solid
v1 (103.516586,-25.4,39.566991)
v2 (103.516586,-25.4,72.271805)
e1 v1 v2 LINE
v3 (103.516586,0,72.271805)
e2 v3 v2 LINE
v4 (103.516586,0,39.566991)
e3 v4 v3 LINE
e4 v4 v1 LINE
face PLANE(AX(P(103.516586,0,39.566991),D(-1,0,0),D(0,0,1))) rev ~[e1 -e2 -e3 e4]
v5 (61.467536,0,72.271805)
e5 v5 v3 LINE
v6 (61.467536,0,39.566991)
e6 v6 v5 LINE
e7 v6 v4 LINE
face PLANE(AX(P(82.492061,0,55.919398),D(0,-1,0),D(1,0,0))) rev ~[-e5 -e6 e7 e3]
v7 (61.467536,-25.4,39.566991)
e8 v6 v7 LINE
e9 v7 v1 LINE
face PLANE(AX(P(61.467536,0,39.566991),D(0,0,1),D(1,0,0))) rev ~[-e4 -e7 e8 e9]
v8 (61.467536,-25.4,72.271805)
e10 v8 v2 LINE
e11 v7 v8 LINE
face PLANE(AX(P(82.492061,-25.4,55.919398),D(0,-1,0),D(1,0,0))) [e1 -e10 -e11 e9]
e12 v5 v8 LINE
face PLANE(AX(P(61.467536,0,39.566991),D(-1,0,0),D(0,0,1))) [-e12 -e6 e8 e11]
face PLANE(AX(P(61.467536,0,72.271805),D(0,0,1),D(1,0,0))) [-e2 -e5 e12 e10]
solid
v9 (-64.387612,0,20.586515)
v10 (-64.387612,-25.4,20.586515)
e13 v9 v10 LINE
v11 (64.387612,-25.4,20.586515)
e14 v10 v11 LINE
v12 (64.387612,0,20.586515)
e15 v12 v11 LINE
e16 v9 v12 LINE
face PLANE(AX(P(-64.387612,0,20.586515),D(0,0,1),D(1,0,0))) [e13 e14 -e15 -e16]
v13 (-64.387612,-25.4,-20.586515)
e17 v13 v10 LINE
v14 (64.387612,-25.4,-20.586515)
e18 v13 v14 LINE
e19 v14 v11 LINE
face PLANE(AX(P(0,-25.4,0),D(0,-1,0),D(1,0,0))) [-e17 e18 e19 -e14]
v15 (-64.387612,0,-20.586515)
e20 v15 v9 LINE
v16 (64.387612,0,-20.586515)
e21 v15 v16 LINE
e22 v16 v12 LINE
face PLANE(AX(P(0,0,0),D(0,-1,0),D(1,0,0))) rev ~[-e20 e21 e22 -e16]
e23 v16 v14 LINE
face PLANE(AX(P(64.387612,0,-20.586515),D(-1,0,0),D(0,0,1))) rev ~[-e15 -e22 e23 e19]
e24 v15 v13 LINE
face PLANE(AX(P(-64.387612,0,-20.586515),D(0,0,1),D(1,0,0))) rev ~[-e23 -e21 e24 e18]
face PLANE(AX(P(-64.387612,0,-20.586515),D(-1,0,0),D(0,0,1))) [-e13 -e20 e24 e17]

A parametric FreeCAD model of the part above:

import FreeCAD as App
import Part
import Sketcher

V = App.Vector
Q = App.Units.Quantity


def add_polygon(sketch, points):
    """Adds a closed chain of lines whose ends are joined by coincident constraints."""
    first, n = sketch.GeometryCount, len(points)
    for a, b in zip(points, points[1:] + points[:1]):
        sketch.addGeometry(Part.LineSegment(App.Vector(*a, 0), App.Vector(*b, 0)), False)
    for i in range(n):
        sketch.addConstraint(Sketcher.Constraint("Coincident", first + i, 2, first + (i + 1) % n, 1))

doc = App.newDocument("Part")
body = doc.addObject("PartDesign::Body", "Body")
body.AllowCompound = True

# Sketch on XZ plane
sketch1 = body.newObject("Sketcher::SketchObject", "Sketch")
sketch1.AttachmentSupport = (doc.getObject("XZ_Plane"), [""])
sketch1.MapMode = "FlatFace"
add_polygon(sketch1, [(-64, 21), (-64, -21), (64, -21), (64, 21)])  # lines 0-3
add_polygon(sketch1, [(61, 72), (61, 40), (104, 40), (104, 72)])  # lines 4-7
sketch1.addConstraint(Sketcher.Constraint("Vertical", 0))
sketch1.addConstraint(Sketcher.Constraint("Horizontal", 1))
sketch1.addConstraint(Sketcher.Constraint("Vertical", 2))
sketch1.addConstraint(Sketcher.Constraint("Horizontal", 3))
sketch1.addConstraint(Sketcher.Constraint("Vertical", 4))
sketch1.addConstraint(Sketcher.Constraint("Horizontal", 5))
sketch1.addConstraint(Sketcher.Constraint("Vertical", 6))
sketch1.addConstraint(Sketcher.Constraint("Horizontal", 7))
sketch1.addConstraint(Sketcher.Constraint("Symmetric", 0, 2, 2, 2, -1, 1))
sketch1.addConstraint(Sketcher.Constraint("DistanceX", 5, 1, 5, 2, Q("42.04905 mm")))
sketch1.addConstraint(Sketcher.Constraint("DistanceY", 0, 2, 0, 1, Q("41.17303 mm")))
sketch1.addConstraint(Sketcher.Constraint("DistanceX", 3, 2, 5, 2, Q("167.904198 mm")))
sketch1.addConstraint(Sketcher.Constraint("DistanceX", 1, 1, 1, 2, Q("128.775224 mm")))
sketch1.addConstraint(Sketcher.Constraint("DistanceY", 4, 2, 4, 1, Q("32.704815 mm")))
sketch1.addConstraint(Sketcher.Constraint("DistanceY", -1, 1, 4, 2, Q("39.566991 mm")))
pad1 = body.newObject("PartDesign::Pad", "Pad")
pad1.Profile = sketch1
pad1.Length = Q("1 in")

doc.recompute()
